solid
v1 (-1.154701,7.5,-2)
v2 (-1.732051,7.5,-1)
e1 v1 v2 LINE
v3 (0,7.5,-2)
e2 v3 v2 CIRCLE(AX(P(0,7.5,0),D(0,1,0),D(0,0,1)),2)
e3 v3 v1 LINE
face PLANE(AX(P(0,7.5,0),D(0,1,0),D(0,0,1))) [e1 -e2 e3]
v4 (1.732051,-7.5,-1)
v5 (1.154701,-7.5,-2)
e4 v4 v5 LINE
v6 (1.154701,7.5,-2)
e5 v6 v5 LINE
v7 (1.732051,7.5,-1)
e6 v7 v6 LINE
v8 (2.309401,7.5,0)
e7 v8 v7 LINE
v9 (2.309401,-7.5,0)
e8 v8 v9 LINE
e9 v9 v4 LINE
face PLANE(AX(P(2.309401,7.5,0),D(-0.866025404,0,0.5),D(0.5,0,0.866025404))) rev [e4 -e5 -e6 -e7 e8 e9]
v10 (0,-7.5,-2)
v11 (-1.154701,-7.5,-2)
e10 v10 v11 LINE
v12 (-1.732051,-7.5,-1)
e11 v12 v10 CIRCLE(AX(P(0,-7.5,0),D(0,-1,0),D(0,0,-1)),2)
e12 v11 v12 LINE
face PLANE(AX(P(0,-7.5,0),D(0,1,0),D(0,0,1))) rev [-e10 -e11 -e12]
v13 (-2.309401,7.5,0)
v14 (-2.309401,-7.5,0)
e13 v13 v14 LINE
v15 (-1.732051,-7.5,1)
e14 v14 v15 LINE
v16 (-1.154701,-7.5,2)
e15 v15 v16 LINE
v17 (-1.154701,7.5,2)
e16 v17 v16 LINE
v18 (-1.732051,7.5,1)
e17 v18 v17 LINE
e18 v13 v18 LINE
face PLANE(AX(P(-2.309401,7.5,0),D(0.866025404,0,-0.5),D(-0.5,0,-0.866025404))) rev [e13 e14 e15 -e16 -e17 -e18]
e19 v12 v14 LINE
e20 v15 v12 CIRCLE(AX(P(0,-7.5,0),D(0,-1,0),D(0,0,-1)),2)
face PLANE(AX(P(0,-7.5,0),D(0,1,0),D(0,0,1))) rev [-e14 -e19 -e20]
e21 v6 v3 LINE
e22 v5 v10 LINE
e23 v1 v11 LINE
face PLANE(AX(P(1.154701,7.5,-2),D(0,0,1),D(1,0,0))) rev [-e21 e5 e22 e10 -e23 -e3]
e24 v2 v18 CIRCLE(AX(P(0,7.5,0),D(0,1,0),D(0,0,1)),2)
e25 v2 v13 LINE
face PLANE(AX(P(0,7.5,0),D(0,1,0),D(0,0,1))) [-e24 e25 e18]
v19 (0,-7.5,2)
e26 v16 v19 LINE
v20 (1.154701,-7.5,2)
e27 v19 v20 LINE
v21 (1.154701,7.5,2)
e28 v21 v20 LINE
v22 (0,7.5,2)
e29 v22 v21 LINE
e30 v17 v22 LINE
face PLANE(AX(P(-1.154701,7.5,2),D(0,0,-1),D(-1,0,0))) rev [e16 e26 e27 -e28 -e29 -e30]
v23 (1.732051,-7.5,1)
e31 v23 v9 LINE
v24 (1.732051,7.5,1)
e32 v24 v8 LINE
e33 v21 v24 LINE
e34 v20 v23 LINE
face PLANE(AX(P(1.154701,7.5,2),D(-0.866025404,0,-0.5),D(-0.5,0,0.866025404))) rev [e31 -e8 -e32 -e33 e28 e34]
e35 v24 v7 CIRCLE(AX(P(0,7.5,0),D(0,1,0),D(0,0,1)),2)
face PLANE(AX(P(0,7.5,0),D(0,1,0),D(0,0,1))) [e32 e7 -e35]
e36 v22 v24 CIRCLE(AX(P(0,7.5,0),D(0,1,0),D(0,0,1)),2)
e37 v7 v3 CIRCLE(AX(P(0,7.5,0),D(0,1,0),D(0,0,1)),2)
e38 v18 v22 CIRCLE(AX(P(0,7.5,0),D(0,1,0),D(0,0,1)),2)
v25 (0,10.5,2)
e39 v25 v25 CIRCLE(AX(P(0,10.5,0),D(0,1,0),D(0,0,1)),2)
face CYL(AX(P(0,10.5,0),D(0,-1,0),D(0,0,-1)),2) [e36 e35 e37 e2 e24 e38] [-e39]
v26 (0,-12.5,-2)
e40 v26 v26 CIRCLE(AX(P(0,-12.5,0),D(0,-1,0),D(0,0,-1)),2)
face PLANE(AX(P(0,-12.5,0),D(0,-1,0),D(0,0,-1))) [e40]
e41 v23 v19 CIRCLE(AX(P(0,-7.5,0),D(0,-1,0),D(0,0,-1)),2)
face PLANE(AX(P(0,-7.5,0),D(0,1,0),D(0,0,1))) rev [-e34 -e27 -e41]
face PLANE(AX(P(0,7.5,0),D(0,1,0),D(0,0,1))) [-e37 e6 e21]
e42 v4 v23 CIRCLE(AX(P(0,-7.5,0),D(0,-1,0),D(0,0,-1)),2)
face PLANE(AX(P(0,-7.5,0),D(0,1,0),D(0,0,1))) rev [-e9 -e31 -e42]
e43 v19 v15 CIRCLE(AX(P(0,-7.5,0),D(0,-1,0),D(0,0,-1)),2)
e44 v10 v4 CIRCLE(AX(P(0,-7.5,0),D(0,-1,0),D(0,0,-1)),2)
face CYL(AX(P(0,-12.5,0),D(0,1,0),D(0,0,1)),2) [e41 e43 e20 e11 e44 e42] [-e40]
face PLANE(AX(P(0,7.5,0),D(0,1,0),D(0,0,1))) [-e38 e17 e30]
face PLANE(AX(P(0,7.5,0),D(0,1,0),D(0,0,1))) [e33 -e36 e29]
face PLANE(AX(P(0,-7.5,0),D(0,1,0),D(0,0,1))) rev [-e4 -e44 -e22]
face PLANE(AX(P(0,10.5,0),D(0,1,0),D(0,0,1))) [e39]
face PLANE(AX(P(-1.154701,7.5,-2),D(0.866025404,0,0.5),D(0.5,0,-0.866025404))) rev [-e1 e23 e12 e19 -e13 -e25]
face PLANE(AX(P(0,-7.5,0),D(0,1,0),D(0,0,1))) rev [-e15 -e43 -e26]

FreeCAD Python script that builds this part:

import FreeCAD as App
import Part
import Sketcher

V = App.Vector
Q = App.Units.Quantity

doc = App.newDocument("Part")
params = doc.addObject("Spreadsheet::Sheet", "Params")
for row, (alias, value) in enumerate([
    ("pad1_length", "15 mm"),
    ("sketch2_diameter", "4 mm"),
    ("pad2_length", "3 mm"),
    ("sketch3_diameter", "4 mm"),
    ("pad3_length", "5 mm"),
], start=1):
    params.set(f"A{row}", alias)
    params.set(f"B{row}", "=" + value)
    params.setAlias(f"B{row}", alias)

body = doc.addObject("PartDesign::Body", "Body")

# Sketch on XZ plane
sketch1 = body.newObject("Sketcher::SketchObject", "Sketch")
sketch1.AttachmentSupport = (doc.getObject("XZ_Plane"), [""])
sketch1.MapMode = "FlatFace"
sketch1.addGeometry(Part.LineSegment(V(-2.3, 0, 0), V(-1.2, 2, 0)), False)
sketch1.addGeometry(Part.LineSegment(V(-1.2, 2, 0), V(1.2, 2, 0)), False)
sketch1.addGeometry(Part.LineSegment(V(1.2, 2, 0), V(2.3, 0, 0)), False)
sketch1.addGeometry(Part.LineSegment(V(2.3, 0, 0), V(1.2, -2, 0)), False)
sketch1.addGeometry(Part.LineSegment(V(1.2, -2, 0), V(-1.2, -2, 0)), False)
sketch1.addGeometry(Part.LineSegment(V(-1.2, -2, 0), V(-2.3, 0, 0)), False)
sketch1.addConstraint(Sketcher.Constraint("Coincident", 0, 2, 1, 1))
sketch1.addConstraint(Sketcher.Constraint("Coincident", 1, 2, 2, 1))
sketch1.addConstraint(Sketcher.Constraint("Coincident", 2, 2, 3, 1))
sketch1.addConstraint(Sketcher.Constraint("Coincident", 3, 2, 4, 1))
sketch1.addConstraint(Sketcher.Constraint("Coincident", 4, 2, 5, 1))
sketch1.addConstraint(Sketcher.Constraint("Coincident", 5, 2, 0, 1))
sketch1.addConstraint(Sketcher.Constraint("Horizontal", 1))
sketch1.addConstraint(Sketcher.Constraint("Horizontal", 4))
sketch1.addConstraint(Sketcher.Constraint("Symmetric", 0, 2, 3, 2, -1, 1))
sketch1.addConstraint(Sketcher.Constraint("Symmetric", 2, 2, 5, 2, -1, 1))
sketch1.addConstraint(Sketcher.Constraint("PointOnObject", 2, 2, -1))
sketch1.addConstraint(Sketcher.Constraint("Parallel", 2, 5))
sketch1.addConstraint(Sketcher.Constraint("Vertical", 1, 2, 3, 2))
sketch1.addConstraint(Sketcher.Constraint("Angle", 0, Q("60 deg")))
sketch1.addConstraint(Sketcher.Constraint("DistanceY", -1, 1, 0, 2, Q("2 mm")))
sketch1.addConstraint(Sketcher.Constraint("DistanceX", 1, 1, 1, 2, Q("2.309401 mm")))
pad1 = body.newObject("PartDesign::Pad", "Pad")
pad1.Profile = sketch1
pad1.setExpression("Length", "Params.pad1_length")
pad1.Midplane = True

# Sketch on XZ plane
sketch2 = body.newObject("Sketcher::SketchObject", "Sketch001")
sketch2.AttachmentSupport = (doc.getObject("XZ_Plane"), [""])
sketch2.MapMode = "FlatFace"
sketch2.AttachmentOffset = App.Placement(V(0, 0, -7.5), App.Rotation())
sketch2.addGeometry(Part.Circle(V(0, 0, 0), V(0, 0, 1), 2), False)
sketch2.addConstraint(Sketcher.Constraint("Coincident", 0, 3, -1, 1))
sketch2.addConstraint(Sketcher.Constraint("Diameter", 0, Q("4 mm")))
sketch2.setExpression("Constraints[1]", "Params.sketch2_diameter")
pad2 = body.newObject("PartDesign::Pad", "Pad001")
pad2.Profile = sketch2
pad2.setExpression("Length", "Params.pad2_length")
pad2.Reversed = True

# Sketch on XZ plane
sketch3 = body.newObject("Sketcher::SketchObject", "Sketch002")
sketch3.AttachmentSupport = (doc.getObject("XZ_Plane"), [""])
sketch3.MapMode = "FlatFace"
sketch3.AttachmentOffset = App.Placement(V(0, 0, 12.5), App.Rotation())
sketch3.addGeometry(Part.Circle(V(0, 0, 0), V(0, 0, 1), 2), False)
sketch3.addConstraint(Sketcher.Constraint("Coincident", 0, 3, -1, 1))
sketch3.addConstraint(Sketcher.Constraint("Diameter", 0, Q("4 mm")))
sketch3.setExpression("Constraints[1]", "Params.sketch3_diameter")
pad3 = body.newObject("PartDesign::Pad", "Pad002")
pad3.Profile = sketch3
pad3.setExpression("Length", "Params.pad3_length")
pad3.Reversed = True

doc.recompute()
